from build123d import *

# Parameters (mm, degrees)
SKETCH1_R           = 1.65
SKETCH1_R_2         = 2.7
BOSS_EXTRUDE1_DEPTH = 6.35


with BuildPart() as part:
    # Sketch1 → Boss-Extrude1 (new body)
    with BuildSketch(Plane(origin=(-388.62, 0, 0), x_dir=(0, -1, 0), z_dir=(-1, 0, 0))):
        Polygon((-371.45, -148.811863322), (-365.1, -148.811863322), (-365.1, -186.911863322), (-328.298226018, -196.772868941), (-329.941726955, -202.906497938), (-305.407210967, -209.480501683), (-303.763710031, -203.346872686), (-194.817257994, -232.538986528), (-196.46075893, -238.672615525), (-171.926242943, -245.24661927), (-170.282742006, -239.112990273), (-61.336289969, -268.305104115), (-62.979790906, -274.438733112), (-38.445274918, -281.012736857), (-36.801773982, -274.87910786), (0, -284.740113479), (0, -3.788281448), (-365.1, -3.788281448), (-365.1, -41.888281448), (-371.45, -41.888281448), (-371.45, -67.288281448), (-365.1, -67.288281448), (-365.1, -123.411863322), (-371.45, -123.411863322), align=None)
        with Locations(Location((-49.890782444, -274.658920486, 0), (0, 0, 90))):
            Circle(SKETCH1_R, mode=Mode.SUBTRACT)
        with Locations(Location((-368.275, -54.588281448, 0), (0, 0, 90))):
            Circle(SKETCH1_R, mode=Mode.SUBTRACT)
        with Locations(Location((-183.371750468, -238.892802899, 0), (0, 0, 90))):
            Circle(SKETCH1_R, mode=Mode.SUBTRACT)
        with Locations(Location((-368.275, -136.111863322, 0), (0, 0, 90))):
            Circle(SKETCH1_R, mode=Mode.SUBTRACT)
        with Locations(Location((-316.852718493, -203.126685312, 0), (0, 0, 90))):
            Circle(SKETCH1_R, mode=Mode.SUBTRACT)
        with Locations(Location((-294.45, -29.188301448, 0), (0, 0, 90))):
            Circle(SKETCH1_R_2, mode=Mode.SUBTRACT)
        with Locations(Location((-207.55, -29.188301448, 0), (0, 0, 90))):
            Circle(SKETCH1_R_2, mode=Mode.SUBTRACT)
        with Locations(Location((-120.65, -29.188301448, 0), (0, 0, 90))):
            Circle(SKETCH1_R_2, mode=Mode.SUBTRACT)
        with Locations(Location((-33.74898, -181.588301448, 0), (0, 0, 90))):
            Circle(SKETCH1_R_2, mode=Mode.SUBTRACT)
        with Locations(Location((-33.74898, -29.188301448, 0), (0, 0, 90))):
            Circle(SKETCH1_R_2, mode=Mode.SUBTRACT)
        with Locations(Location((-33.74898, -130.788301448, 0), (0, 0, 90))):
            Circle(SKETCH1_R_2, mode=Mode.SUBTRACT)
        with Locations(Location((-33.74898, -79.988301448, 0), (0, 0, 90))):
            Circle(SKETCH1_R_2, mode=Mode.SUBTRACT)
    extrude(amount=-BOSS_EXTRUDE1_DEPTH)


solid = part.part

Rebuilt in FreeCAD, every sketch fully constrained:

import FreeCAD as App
import Part
import Sketcher
from FreeCAD import Vector
Q = App.Units.Quantity


def add_polygon(sketch, points):
    """Adds a closed chain of lines whose ends are joined by coincident constraints."""
    first, n = sketch.GeometryCount, len(points)
    for a, b in zip(points, points[1:] + points[:1]):
        sketch.addGeometry(Part.LineSegment(App.Vector(*a, 0), App.Vector(*b, 0)), False)
    for i in range(n):
        sketch.addConstraint(Sketcher.Constraint("Coincident", first + i, 2, first + (i + 1) % n, 1))

doc = App.newDocument("Part")
body = doc.addObject("PartDesign::Body", "Body")

sketch1 = body.newObject("Sketcher::SketchObject", "Sketch")
sketch1.AttachmentSupport = (doc.getObject("YZ_Plane"), [""])
sketch1.MapMode = "FlatFace"
sketch1.AttachmentOffset = App.Placement(Vector(0, 0, -388.62), App.Rotation())
add_polygon(sketch1, [(371.4, -148.8), (365.1, -148.8), (365.1, -186.9), (328.3, -196.8), (329.9, -202.9), (305.4, -209.5), (303.8, -203.3), (194.8, -232.5), (196.5, -238.7), (171.9, -245.2), (170.3, -239.1), (61.3, -268.3), (63, -274.4), (38.4, -281), (36.8, -274.9), (0, -284.7), (0, -3.8), (365.1, -3.8), (365.1, -41.9), (371.4, -41.9), (371.4, -67.3), (365.1, -67.3), (365.1, -123.4), (371.4, -123.4)])
sketch1.addGeometry(Part.Circle(Vector(316.9, -203.1, 0), Vector(0, 0, 1), 1.6), False)
sketch1.addGeometry(Part.Circle(Vector(183.4, -238.9, 0), Vector(0, 0, 1), 1.6), False)
sketch1.addGeometry(Part.Circle(Vector(49.9, -274.7, 0), Vector(0, 0, 1), 1.6), False)
sketch1.addGeometry(Part.Circle(Vector(33.7, -181.6, 0), Vector(0, 0, 1), 2.7), False)
sketch1.addGeometry(Part.Circle(Vector(368.3, -136.1, 0), Vector(0, 0, 1), 1.6), False)
sketch1.addGeometry(Part.Circle(Vector(368.3, -54.6, 0), Vector(0, 0, 1), 1.6), False)
sketch1.addGeometry(Part.Circle(Vector(294.4, -29.2, 0), Vector(0, 0, 1), 2.7), False)
sketch1.addGeometry(Part.Circle(Vector(207.6, -29.2, 0), Vector(0, 0, 1), 2.7), False)
sketch1.addGeometry(Part.Circle(Vector(33.7, -130.8, 0), Vector(0, 0, 1), 2.7), False)
sketch1.addGeometry(Part.Circle(Vector(120.7, -29.2, 0), Vector(0, 0, 1), 2.7), False)
sketch1.addGeometry(Part.Circle(Vector(33.7, -80, 0), Vector(0, 0, 1), 2.7), False)
sketch1.addGeometry(Part.Circle(Vector(33.7, -29.2, 0), Vector(0, 0, 1), 2.7), False)
sketch1.addConstraint([
    Sketcher.Constraint("Horizontal", 0),
    Sketcher.Constraint("Vertical", 1),
    Sketcher.Constraint("Vertical", 15),
    Sketcher.Constraint("Horizontal", 16),
    Sketcher.Constraint("Vertical", 17),
    Sketcher.Constraint("Horizontal", 18),
    Sketcher.Constraint("Vertical", 19),
    Sketcher.Constraint("Horizontal", 20),
    Sketcher.Constraint("Vertical", 21),
    Sketcher.Constraint("Horizontal", 22),
    Sketcher.Constraint("Vertical", 23),
    Sketcher.Constraint("Equal", 24, 25),
    Sketcher.Constraint("Equal", 25, 26),
    Sketcher.Constraint("Equal", 26, 28),
    Sketcher.Constraint("Equal", 28, 29),
    Sketcher.Constraint("Equal", 27, 30),
    Sketcher.Constraint("Equal", 30, 31),
    Sketcher.Constraint("Equal", 31, 32),
    Sketcher.Constraint("Equal", 32, 33),
    Sketcher.Constraint("Equal", 33, 34),
    Sketcher.Constraint("Equal", 34, 35),
    Sketcher.Constraint("PointOnObject", 14, 2, -2),
    Sketcher.Constraint("Perpendicular", 2, 3),
    Sketcher.Constraint("Perpendicular", 3, 4),
    Sketcher.Constraint("Perpendicular", 4, 5),
    Sketcher.Constraint("Perpendicular", 5, 6),
    Sketcher.Constraint("Perpendicular", 6, 7),
    Sketcher.Constraint("Perpendicular", 7, 8),
    Sketcher.Constraint("Perpendicular", 8, 9),
    Sketcher.Constraint("Perpendicular", 9, 10),
    Sketcher.Constraint("Perpendicular", 10, 11),
    Sketcher.Constraint("Perpendicular", 11, 12),
    Sketcher.Constraint("Perpendicular", 12, 13),
    Sketcher.Constraint("Perpendicular", 13, 14),
    Sketcher.Constraint("Horizontal", 30, 3, 31, 3),
    Sketcher.Constraint("Horizontal", 31, 3, 33, 3),
    Sketcher.Constraint("Horizontal", 33, 3, 35, 3),
    Sketcher.Constraint("Vertical", 28, 3, 29, 3),
    Sketcher.Constraint("Vertical", 27, 3, 32, 3),
    Sketcher.Constraint("Vertical", 32, 3, 34, 3),
    Sketcher.Constraint("Vertical", 34, 3, 35, 3),
    Sketcher.Constraint("Vertical", 1, 2, 16, 2),
    Sketcher.Constraint("Vertical", 17, 2, 20, 2),
    Sketcher.Constraint("Vertical", 19, 2, 22, 2),
    Sketcher.Constraint("Equal", 1, 17),
    Sketcher.Constraint("Equal", 19, 23),
    Sketcher.Constraint("Equal", 3, 5),
    Sketcher.Constraint("Equal", 5, 7),
    Sketcher.Constraint("Equal", 4, 8),
    Sketcher.Constraint("Equal", 7, 9),
    Sketcher.Constraint("Equal", 6, 10),
    Sketcher.Constraint("Equal", 9, 11),
    Sketcher.Constraint("Equal", 8, 12),
    Sketcher.Constraint("Equal", 11, 13),
    Sketcher.Constraint("Equal", 2, 14),
    Sketcher.Constraint("Diameter", 24, Q("3.3 mm")),
    Sketcher.Constraint("Diameter", 27, Q("5.4 mm")),
    Sketcher.Constraint("Angle", 2, Q("-165 deg")),
    Sketcher.Constraint("DistanceX", 16, 1, 16, 2, Q("365.1 mm")),
    Sketcher.Constraint("DistanceY", 1, 2, 1, 1, Q("38.1 mm")),
    Sketcher.Constraint("DistanceY", 19, 2, 19, 1, Q("25.4 mm")),
    Sketcher.Constraint("DistanceX", 30, 3, 18, 2, Q("77 mm")),
    Sketcher.Constraint("Distance", 2, Q("38.1 mm")),
    Sketcher.Constraint("Distance", 4, Q("25.4 mm")),
    Sketcher.Constraint("DistanceX", 0, 2, 0, 1, Q("6.35 mm")),
    Sketcher.Constraint("DistanceY", 27, 3, 30, 3, Q("152.4 mm")),
    Sketcher.Constraint("DistanceX", 31, 3, 30, 3, Q("86.9 mm")),
    Sketcher.Constraint("DistanceY", 27, 3, 32, 3, Q("50.8 mm")),
    Sketcher.Constraint("DistanceX", 33, 3, 31, 3, Q("86.9 mm")),
    Sketcher.Constraint("DistanceY", 32, 3, 34, 3, Q("50.8 mm")),
    Sketcher.Constraint("DistanceY", 0, 2, 28, 3, Q("12.7 mm")),
    Sketcher.Constraint("DistanceY", 29, 3, 16, 2, Q("50.8 mm")),
    Sketcher.Constraint("Distance", 3, Q("6.35 mm")),
    Sketcher.Constraint("DistanceX", -1, 1, 28, 3, Q("368.275 mm")),
    Sketcher.Constraint("DistanceY", 21, 2, 21, 1, Q("56.123582 mm")),
    Sketcher.Constraint("DistanceY", 27, 3, -1, 1, Q("181.588301 mm")),
    Sketcher.Constraint("DistanceY", 4, 2, -1, 1, Q("209.480502 mm")),
    Sketcher.Constraint("DistanceY", 25, 3, 27, 3, Q("57.304501 mm")),
    Sketcher.Constraint("DistanceY", 6, 2, 24, 3, Q("29.412301 mm")),
    Sketcher.Constraint("DistanceY", 26, 3, 8, 2, Q("29.412301 mm")),
    Sketcher.Constraint("DistanceX", -1, 1, 24, 3, Q("316.852718 mm")),
    Sketcher.Constraint("DistanceX", -1, 1, 25, 3, Q("183.37175 mm")),
    Sketcher.Constraint("DistanceX", -1, 1, 27, 3, Q("33.74898 mm")),
    Sketcher.Constraint("DistanceX", 26, 3, 25, 3, Q("133.480968 mm")),
])
pad1 = body.newObject("PartDesign::Pad", "Pad")
pad1.Profile = sketch1
pad1.Length = 6.35

doc.recompute()
